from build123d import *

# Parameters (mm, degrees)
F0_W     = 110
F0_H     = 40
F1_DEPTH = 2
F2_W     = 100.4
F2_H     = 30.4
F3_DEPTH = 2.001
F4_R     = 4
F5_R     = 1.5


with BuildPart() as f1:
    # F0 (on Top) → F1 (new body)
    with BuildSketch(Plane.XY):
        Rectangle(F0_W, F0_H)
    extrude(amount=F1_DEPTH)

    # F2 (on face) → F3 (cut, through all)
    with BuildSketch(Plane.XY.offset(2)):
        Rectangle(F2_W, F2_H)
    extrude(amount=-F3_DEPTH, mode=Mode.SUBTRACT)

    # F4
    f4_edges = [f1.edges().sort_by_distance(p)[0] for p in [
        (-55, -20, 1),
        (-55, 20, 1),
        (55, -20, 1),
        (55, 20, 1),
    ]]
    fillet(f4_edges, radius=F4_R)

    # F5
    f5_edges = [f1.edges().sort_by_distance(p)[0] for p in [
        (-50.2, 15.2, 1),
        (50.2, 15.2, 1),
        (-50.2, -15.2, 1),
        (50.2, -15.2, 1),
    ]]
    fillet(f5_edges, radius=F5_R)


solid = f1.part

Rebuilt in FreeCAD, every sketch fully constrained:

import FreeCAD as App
import Part
import Sketcher
from FreeCAD import Vector
Q = App.Units.Quantity


def edges_at(feature, points):
    """Names of the edges that pass closest to the given points."""
    edges = feature.Shape.Edges
    near = lambda p: min(range(len(edges)), key=lambda i: edges[i].distToShape(Part.Vertex(*p))[0])
    return sorted({f"Edge{near(p) + 1}" for p in points})

doc = App.newDocument("Part")
body = doc.addObject("PartDesign::Body", "Body")

sketch1 = body.newObject("Sketcher::SketchObject", "Sketch")
sketch1.AttachmentSupport = (doc.getObject("XY_Plane"), [""])
sketch1.MapMode = "FlatFace"
sketch1.addGeometry(Part.LineSegment(Vector(-55, 20, 0), Vector(-55, -20, 0)), False)
sketch1.addGeometry(Part.LineSegment(Vector(-55, -20, 0), Vector(55, -20, 0)), False)
sketch1.addGeometry(Part.LineSegment(Vector(55, -20, 0), Vector(55, 20, 0)), False)
sketch1.addGeometry(Part.LineSegment(Vector(55, 20, 0), Vector(-55, 20, 0)), False)
sketch1.addConstraint(Sketcher.Constraint("Coincident", 0, 2, 1, 1))
sketch1.addConstraint(Sketcher.Constraint("Coincident", 1, 2, 2, 1))
sketch1.addConstraint(Sketcher.Constraint("Coincident", 2, 2, 3, 1))
sketch1.addConstraint(Sketcher.Constraint("Coincident", 3, 2, 0, 1))
sketch1.addConstraint(Sketcher.Constraint("Vertical", 0))
sketch1.addConstraint(Sketcher.Constraint("Horizontal", 1))
sketch1.addConstraint(Sketcher.Constraint("Vertical", 2))
sketch1.addConstraint(Sketcher.Constraint("Horizontal", 3))
sketch1.addConstraint(Sketcher.Constraint("Symmetric", 0, 2, 2, 2, -1, 1))
sketch1.addConstraint(Sketcher.Constraint("DistanceX", 1, 1, 1, 2, Q("110 mm")))
sketch1.addConstraint(Sketcher.Constraint("DistanceY", 0, 2, 0, 1, Q("40 mm")))
pad1 = body.newObject("PartDesign::Pad", "Pad")
pad1.Profile = sketch1
pad1.Length = 2

sketch2 = body.newObject("Sketcher::SketchObject", "Sketch001")
sketch2.AttachmentSupport = (doc.getObject("XY_Plane"), [""])
sketch2.MapMode = "FlatFace"
sketch2.AttachmentOffset = App.Placement(Vector(0, 0, 2), App.Rotation())
sketch2.addGeometry(Part.LineSegment(Vector(-50.2, 15.2, 0), Vector(-50.2, -15.2, 0)), False)
sketch2.addGeometry(Part.LineSegment(Vector(-50.2, -15.2, 0), Vector(50.2, -15.2, 0)), False)
sketch2.addGeometry(Part.LineSegment(Vector(50.2, -15.2, 0), Vector(50.2, 15.2, 0)), False)
sketch2.addGeometry(Part.LineSegment(Vector(50.2, 15.2, 0), Vector(-50.2, 15.2, 0)), False)
sketch2.addConstraint(Sketcher.Constraint("Coincident", 0, 2, 1, 1))
sketch2.addConstraint(Sketcher.Constraint("Coincident", 1, 2, 2, 1))
sketch2.addConstraint(Sketcher.Constraint("Coincident", 2, 2, 3, 1))
sketch2.addConstraint(Sketcher.Constraint("Coincident", 3, 2, 0, 1))
sketch2.addConstraint(Sketcher.Constraint("Vertical", 0))
sketch2.addConstraint(Sketcher.Constraint("Horizontal", 1))
sketch2.addConstraint(Sketcher.Constraint("Vertical", 2))
sketch2.addConstraint(Sketcher.Constraint("Horizontal", 3))
sketch2.addConstraint(Sketcher.Constraint("Symmetric", 0, 2, 2, 2, -1, 1))
sketch2.addConstraint(Sketcher.Constraint("DistanceX", 1, 1, 1, 2, Q("100.4 mm")))
sketch2.addConstraint(Sketcher.Constraint("DistanceY", 0, 2, 0, 1, Q("30.4 mm")))
pocket1 = body.newObject("PartDesign::Pocket", "Pocket")
pocket1.Profile = sketch2
pocket1.Type = "ThroughAll"
doc.recompute()

fillet = body.newObject("PartDesign::Fillet", "Fillet")
fillet.Base = (pocket1, edges_at(pocket1, [
    (-55, -20, 1),
    (-55, 20, 1),
    (55, -20, 1),
    (55, 20, 1),
]))
fillet.Radius = 4
doc.recompute()

fillet2 = body.newObject("PartDesign::Fillet", "Fillet001")
fillet2.Base = (fillet, edges_at(fillet, [
    (-50.2, 15.2, 1),
    (50.2, 15.2, 1),
    (-50.2, -15.2, 1),
    (50.2, -15.2, 1),
]))
fillet2.Radius = 1.5

doc.recompute()
